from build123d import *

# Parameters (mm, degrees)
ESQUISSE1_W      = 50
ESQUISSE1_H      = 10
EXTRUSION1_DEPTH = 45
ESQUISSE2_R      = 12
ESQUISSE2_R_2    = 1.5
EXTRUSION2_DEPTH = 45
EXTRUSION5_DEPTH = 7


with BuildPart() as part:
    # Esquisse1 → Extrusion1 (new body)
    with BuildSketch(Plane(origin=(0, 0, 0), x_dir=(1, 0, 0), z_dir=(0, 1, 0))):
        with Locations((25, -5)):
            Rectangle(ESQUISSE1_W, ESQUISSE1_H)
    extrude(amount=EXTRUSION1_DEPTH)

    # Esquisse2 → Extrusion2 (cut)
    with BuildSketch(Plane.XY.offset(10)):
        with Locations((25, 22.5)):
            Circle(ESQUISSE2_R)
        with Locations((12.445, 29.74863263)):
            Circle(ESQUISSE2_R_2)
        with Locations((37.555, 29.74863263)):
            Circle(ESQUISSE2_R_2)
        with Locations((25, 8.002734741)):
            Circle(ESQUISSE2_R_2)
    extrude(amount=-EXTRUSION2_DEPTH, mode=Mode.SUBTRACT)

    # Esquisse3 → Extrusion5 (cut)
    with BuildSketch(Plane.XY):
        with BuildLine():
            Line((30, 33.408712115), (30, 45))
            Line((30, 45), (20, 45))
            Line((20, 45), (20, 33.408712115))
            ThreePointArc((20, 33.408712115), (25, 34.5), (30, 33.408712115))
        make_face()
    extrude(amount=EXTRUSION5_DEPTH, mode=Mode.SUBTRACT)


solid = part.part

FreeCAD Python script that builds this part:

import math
import FreeCAD as App
import Part
import Sketcher
Q = App.Units.Quantity

doc = App.newDocument("Part")
body = doc.addObject("PartDesign::Body", "Body")

# Sketch on XZ plane
sketch1 = body.newObject("Sketcher::SketchObject", "Sketch")
sketch1.AttachmentSupport = (doc.getObject("XZ_Plane"), [""])
sketch1.MapMode = "FlatFace"
sketch1.addGeometry([
    Part.LineSegment(App.Vector(0, 0, 0), App.Vector(0, 10, 0)),
    Part.LineSegment(App.Vector(0, 10, 0), App.Vector(50, 10, 0)),
    Part.LineSegment(App.Vector(50, 10, 0), App.Vector(50, 0, 0)),
    Part.LineSegment(App.Vector(50, 0, 0), App.Vector(0, 0, 0)),
], False)
sketch1.addConstraint([
    Sketcher.Constraint("Coincident", 0, 2, 1, 1),
    Sketcher.Constraint("Coincident", 1, 2, 2, 1),
    Sketcher.Constraint("Coincident", 2, 2, 3, 1),
    Sketcher.Constraint("Coincident", 3, 2, 0, 1),
    Sketcher.Constraint("Vertical", 0),
    Sketcher.Constraint("Horizontal", 1),
    Sketcher.Constraint("Vertical", 2),
    Sketcher.Constraint("Horizontal", 3),
    Sketcher.Constraint("Coincident", 3, 2, -1, 1),
    Sketcher.Constraint("DistanceX", 1, 1, 1, 2, Q("50 mm")),
    Sketcher.Constraint("DistanceY", 0, 1, 0, 2, Q("10 mm")),
])
pad1 = body.newObject("PartDesign::Pad", "Pad")
pad1.Profile = sketch1
pad1.Length = 45
pad1.Reversed = True

# Sketch on XY plane
sketch2 = body.newObject("Sketcher::SketchObject", "Sketch001")
sketch2.AttachmentSupport = (doc.getObject("XY_Plane"), [""])
sketch2.MapMode = "FlatFace"
sketch2.AttachmentOffset = App.Placement(App.Vector(0, 0, 10), App.Rotation())
sketch2.addGeometry([
    Part.Circle(App.Vector(25, 22.5, 0), App.Vector(0, 0, 1), 12),
    Part.Circle(App.Vector(12.445, 29.748633, 0), App.Vector(0, 0, 1), 1.5),
    Part.Circle(App.Vector(37.555, 29.748633, 0), App.Vector(0, 0, 1), 1.5),
    Part.Circle(App.Vector(25, 8.002735, 0), App.Vector(0, 0, 1), 1.5),
], False)
sketch2.addConstraint([
    Sketcher.Constraint("Equal", 1, 2),
    Sketcher.Constraint("Equal", 2, 3),
    Sketcher.Constraint("Horizontal", 1, 3, 2, 3),
    Sketcher.Constraint("Vertical", 0, 3, 3, 3),
    Sketcher.Constraint("Diameter", 0, Q("24 mm")),
    Sketcher.Constraint("Diameter", 1, Q("3 mm")),
    Sketcher.Constraint("DistanceX", -1, 1, 0, 3, Q("25 mm")),
    Sketcher.Constraint("DistanceY", -1, 1, 0, 3, Q("22.5 mm")),
    Sketcher.Constraint("DistanceX", 1, 3, 2, 3, Q("25.11 mm")),
    Sketcher.Constraint("DistanceX", -1, 1, 1, 3, Q("12.445 mm")),
    Sketcher.Constraint("DistanceY", -1, 1, 1, 3, Q("29.748633 mm")),
    Sketcher.Constraint("DistanceY", -1, 1, 3, 3, Q("8.002735 mm")),
])
pocket1 = body.newObject("PartDesign::Pocket", "Pocket")
pocket1.Profile = sketch2
pocket1.Length = 45

# Sketch on XY plane
sketch3 = body.newObject("Sketcher::SketchObject", "Sketch002")
sketch3.AttachmentSupport = (doc.getObject("XY_Plane"), [""])
sketch3.MapMode = "FlatFace"
sketch3.addGeometry([
    Part.LineSegment(App.Vector(30, 33.408712, 0), App.Vector(30, 45, 0)),
    Part.LineSegment(App.Vector(30, 45, 0), App.Vector(20, 45, 0)),
    Part.LineSegment(App.Vector(20, 45, 0), App.Vector(20, 33.408712, 0)),
    Part.ArcOfCircle(Part.Circle(App.Vector(25, 22.5, 0), App.Vector(0, 0, 1), 12), math.radians(65.375682), math.radians(114.624318)),
], False)
sketch3.addConstraint([
    Sketcher.Constraint("Coincident", 0, 2, 1, 1),
    Sketcher.Constraint("Coincident", 1, 2, 2, 1),
    Sketcher.Constraint("Coincident", 2, 2, 3, 2),
    Sketcher.Constraint("Coincident", 3, 1, 0, 1),
    Sketcher.Constraint("Vertical", 0),
    Sketcher.Constraint("Horizontal", 1),
    Sketcher.Constraint("Vertical", 2),
    Sketcher.Constraint("Horizontal", 2, 2, 3, 1),
    Sketcher.Constraint("Radius", 3, Q("12 mm")),
    Sketcher.Constraint("DistanceX", 1, 2, 1, 1, Q("10 mm")),
    Sketcher.Constraint("DistanceX", -1, 1, 3, 3, Q("25 mm")),
    Sketcher.Constraint("DistanceY", -1, 1, 0, 2, Q("45 mm")),
    Sketcher.Constraint("DistanceY", -1, 1, 3, 3, Q("22.5 mm")),
])
pocket2 = body.newObject("PartDesign::Pocket", "Pocket001")
pocket2.Profile = sketch3
pocket2.Length = 7
pocket2.Reversed = True

doc.recompute()
